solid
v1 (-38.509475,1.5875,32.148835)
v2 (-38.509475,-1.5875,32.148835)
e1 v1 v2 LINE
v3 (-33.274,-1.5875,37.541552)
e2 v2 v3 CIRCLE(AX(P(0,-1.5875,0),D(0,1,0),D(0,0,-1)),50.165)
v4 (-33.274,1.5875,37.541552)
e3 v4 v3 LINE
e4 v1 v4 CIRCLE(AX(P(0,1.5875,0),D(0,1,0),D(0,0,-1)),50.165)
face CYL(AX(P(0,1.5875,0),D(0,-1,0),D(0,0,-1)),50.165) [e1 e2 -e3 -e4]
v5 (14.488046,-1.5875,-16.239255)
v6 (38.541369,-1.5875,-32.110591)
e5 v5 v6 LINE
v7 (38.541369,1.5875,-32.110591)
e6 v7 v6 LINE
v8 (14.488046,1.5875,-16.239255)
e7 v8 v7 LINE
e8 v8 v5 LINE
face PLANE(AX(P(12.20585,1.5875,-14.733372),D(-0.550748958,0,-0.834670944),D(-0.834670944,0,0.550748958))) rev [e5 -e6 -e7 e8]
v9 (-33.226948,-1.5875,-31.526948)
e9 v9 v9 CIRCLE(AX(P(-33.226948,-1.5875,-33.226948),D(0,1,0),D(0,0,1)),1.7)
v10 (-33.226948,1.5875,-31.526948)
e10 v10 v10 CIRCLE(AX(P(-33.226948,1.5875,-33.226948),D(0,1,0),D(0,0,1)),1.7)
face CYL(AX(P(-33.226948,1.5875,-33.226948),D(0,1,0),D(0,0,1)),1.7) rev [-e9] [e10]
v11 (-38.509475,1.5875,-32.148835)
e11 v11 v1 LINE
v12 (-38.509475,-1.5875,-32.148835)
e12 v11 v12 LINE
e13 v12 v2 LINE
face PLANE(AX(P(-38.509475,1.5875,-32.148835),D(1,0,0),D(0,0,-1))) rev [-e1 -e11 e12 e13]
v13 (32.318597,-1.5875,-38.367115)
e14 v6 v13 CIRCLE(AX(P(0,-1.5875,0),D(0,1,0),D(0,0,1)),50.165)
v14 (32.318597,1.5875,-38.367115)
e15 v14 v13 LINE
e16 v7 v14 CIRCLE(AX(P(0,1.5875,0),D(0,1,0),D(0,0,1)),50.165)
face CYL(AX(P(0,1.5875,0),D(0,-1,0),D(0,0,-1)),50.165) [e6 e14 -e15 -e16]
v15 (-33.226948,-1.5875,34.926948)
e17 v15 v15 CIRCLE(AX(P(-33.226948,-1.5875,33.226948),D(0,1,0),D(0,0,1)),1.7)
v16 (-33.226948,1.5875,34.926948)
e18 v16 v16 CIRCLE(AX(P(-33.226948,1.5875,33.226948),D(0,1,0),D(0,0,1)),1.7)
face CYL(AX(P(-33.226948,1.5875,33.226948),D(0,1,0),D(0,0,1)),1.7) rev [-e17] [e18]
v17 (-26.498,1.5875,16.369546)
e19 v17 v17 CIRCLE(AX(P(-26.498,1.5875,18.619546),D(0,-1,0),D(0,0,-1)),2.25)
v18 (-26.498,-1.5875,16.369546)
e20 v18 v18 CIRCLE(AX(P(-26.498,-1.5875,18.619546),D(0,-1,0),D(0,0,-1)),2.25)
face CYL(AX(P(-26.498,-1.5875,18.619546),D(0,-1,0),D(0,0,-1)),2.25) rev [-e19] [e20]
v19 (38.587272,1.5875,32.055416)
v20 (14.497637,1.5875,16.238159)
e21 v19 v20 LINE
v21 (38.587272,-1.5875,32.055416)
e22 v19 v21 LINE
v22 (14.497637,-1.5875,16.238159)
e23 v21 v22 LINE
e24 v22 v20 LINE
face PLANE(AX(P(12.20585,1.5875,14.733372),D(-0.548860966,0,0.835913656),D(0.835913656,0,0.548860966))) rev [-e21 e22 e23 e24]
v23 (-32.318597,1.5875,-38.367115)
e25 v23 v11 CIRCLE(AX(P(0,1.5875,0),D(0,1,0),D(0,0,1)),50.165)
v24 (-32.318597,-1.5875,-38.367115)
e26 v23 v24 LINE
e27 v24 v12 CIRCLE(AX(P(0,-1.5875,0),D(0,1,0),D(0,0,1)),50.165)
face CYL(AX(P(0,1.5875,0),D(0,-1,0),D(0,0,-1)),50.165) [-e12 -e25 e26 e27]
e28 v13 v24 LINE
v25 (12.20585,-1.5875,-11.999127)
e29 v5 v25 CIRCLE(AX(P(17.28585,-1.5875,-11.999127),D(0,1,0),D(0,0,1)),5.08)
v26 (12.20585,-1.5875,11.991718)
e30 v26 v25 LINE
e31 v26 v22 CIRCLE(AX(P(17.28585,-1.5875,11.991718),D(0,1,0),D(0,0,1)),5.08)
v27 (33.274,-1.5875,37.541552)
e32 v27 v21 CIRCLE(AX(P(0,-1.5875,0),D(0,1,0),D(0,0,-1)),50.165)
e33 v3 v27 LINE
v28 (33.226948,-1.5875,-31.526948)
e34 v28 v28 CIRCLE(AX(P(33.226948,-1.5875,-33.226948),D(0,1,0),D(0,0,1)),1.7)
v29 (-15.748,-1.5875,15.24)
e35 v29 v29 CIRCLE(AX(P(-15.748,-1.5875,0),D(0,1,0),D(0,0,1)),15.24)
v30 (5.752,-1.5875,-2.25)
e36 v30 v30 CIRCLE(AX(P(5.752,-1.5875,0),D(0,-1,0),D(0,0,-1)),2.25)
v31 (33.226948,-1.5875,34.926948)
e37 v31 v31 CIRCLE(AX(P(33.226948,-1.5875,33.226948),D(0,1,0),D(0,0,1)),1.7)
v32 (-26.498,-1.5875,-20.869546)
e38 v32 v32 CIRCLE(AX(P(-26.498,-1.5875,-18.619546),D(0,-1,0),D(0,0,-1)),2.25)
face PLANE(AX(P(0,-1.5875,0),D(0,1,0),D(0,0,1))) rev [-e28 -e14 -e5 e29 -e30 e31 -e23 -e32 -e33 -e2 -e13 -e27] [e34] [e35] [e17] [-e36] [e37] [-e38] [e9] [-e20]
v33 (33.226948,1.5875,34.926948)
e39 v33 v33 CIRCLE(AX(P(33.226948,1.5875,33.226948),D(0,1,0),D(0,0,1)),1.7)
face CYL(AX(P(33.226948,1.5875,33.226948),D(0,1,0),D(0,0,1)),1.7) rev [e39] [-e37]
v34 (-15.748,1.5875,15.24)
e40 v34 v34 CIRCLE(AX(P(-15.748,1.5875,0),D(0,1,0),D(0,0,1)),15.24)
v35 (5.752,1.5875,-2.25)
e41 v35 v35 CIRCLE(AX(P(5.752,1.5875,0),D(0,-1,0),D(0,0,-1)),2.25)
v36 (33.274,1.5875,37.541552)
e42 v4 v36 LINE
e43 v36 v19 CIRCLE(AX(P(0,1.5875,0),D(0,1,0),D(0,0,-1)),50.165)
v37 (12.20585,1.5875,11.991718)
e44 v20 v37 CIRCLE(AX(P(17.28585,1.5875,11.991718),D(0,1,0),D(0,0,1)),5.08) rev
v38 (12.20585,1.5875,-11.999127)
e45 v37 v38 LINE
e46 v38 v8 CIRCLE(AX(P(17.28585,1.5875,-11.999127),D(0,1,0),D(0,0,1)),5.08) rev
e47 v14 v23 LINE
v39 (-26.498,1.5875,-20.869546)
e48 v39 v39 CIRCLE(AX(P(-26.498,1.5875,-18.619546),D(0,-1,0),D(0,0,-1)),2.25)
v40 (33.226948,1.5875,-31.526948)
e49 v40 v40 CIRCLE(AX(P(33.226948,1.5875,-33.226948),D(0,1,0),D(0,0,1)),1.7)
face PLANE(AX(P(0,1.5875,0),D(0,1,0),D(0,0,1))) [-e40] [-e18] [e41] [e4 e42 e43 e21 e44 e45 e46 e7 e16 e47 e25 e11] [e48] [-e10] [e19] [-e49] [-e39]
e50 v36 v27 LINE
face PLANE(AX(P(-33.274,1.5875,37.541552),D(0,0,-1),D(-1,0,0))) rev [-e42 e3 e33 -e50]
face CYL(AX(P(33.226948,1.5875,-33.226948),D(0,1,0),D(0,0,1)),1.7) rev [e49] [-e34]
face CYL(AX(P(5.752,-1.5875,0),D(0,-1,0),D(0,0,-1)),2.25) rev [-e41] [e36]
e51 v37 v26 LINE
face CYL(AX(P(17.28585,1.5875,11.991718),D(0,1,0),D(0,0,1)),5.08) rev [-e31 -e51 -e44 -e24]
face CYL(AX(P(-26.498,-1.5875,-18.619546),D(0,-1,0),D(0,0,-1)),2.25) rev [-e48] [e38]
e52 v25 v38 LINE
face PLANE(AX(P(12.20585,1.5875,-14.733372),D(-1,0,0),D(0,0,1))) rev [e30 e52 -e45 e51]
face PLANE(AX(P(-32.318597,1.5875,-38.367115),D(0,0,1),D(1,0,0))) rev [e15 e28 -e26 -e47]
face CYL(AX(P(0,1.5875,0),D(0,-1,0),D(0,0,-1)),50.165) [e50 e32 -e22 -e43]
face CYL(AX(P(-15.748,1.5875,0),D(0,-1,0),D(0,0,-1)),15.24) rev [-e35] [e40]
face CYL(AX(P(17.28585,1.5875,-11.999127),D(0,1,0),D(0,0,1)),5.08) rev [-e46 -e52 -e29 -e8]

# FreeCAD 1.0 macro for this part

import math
import FreeCAD as App
import Part
import Sketcher
from FreeCAD import Vector
Q = App.Units.Quantity


def edges_at(feature, points):
    """Names of the edges that pass closest to the given points."""
    edges = feature.Shape.Edges
    near = lambda p: min(range(len(edges)), key=lambda i: edges[i].distToShape(Part.Vertex(*p))[0])
    return sorted({f"Edge{near(p) + 1}" for p in points})

doc = App.newDocument("Part")
params = doc.addObject("Spreadsheet::Sheet", "Params")
for row, (alias, value) in enumerate([
    ("sketch1_diameter", "1.2 in"),
    ("sketch1_radius", "1.975 in"),
    ("sketch1_width", "2.62 in"),
    ("pad1_length", "0.125 in"),
    ("hole_diameter", "3.4 mm"),
    ("fillet_radius", "0.2 in"),
    ("hole2_diameter", "4.5 mm"),
], start=1):
    params.set(f"A{row}", alias)
    params.set(f"B{row}", "=" + value)
    params.setAlias(f"B{row}", alias)

body = doc.addObject("PartDesign::Body", "Body")

# Sketch on XZ plane
sketch1 = body.newObject("Sketcher::SketchObject", "Sketch")
sketch1.AttachmentSupport = (doc.getObject("XZ_Plane"), [""])
sketch1.MapMode = "FlatFace"
sketch1.addGeometry([
    Part.LineSegment(Vector(-38.509475, -32.148835, 0), Vector(-38.509475, 32.148835, 0)),  # 0
    Part.ArcOfCircle(Part.Circle(Vector(0, 0, 0), Vector(0, 0, 1), 50.165), math.radians(131.551359), math.radians(140.143885)),  # 1
    Part.LineSegment(Vector(-33.274, 37.541552, 0), Vector(33.274, 37.541552, 0)),  # 2
    Part.ArcOfCircle(Part.Circle(Vector(0, 0, 0), Vector(0, 0, 1), 50.165), math.radians(39.717264), math.radians(48.448641)),  # 3
    Part.LineSegment(Vector(38.587272, 32.055416, 0), Vector(12.20585, 14.733372, 0)),  # 4
    Part.LineSegment(Vector(12.20585, 14.733372, 0), Vector(12.20585, -14.733372, 0)),  # 5
    Part.LineSegment(Vector(12.20585, -14.733372, 0), Vector(38.541369, -32.110591, 0)),  # 6
    Part.ArcOfCircle(Part.Circle(Vector(0, 0, 0), Vector(0, 0, 1), 50.165), math.radians(-49.890838), math.radians(-39.799239)),  # 7
    Part.LineSegment(Vector(32.318597, -38.367115, 0), Vector(-32.318597, -38.367115, 0)),  # 8
    Part.ArcOfCircle(Part.Circle(Vector(0, 0, 0), Vector(0, 0, 1), 50.165), math.radians(-140.143885), math.radians(-130.109162)),  # 9
    Part.Circle(Vector(-15.748, 0, 0), Vector(0, 0, 1), 15.24),  # 10
], False)
sketch1.addConstraint([
    Sketcher.Constraint("Coincident", 0, 2, 1, 2),
    Sketcher.Constraint("Coincident", 1, 1, 2, 1),
    Sketcher.Constraint("Coincident", 2, 2, 3, 2),
    Sketcher.Constraint("Coincident", 3, 1, 4, 1),
    Sketcher.Constraint("Coincident", 4, 2, 5, 1),
    Sketcher.Constraint("Coincident", 5, 2, 6, 1),
    Sketcher.Constraint("Coincident", 6, 2, 7, 2),
    Sketcher.Constraint("Coincident", 7, 1, 8, 1),
    Sketcher.Constraint("Coincident", 8, 2, 9, 2),
    Sketcher.Constraint("Coincident", 9, 1, 0, 1),
    Sketcher.Constraint("Vertical", 0),
    Sketcher.Constraint("Horizontal", 2),
    Sketcher.Constraint("Vertical", 5),
    Sketcher.Constraint("Horizontal", 8),
    Sketcher.Constraint("Coincident", 1, 3, -1, 1),
    Sketcher.Constraint("Coincident", 3, 3, -1, 1),
    Sketcher.Constraint("Coincident", 7, 3, -1, 1),
    Sketcher.Constraint("Coincident", 9, 3, -1, 1),
    Sketcher.Constraint("Equal", 1, 3),
    Sketcher.Constraint("Equal", 3, 7),
    Sketcher.Constraint("Equal", 7, 9),
    Sketcher.Constraint("PointOnObject", 10, 3, -1),
    Sketcher.Constraint("Diameter", 10, Q("1.2 in")),
    Sketcher.Constraint("Radius", 1, Q("1.975 in")),
    Sketcher.Constraint("DistanceX", 2, 1, 2, 2, Q("2.62 in")),
    Sketcher.Constraint("DistanceX", 10, 3, -1, 1, Q("0.62 in")),
    Sketcher.Constraint("DistanceY", 0, 1, 0, 2, 64.297669),
    Sketcher.Constraint("DistanceX", 8, 2, 8, 1, 64.637195),
    Sketcher.Constraint("DistanceY", 5, 2, 5, 1, 29.466744),
    Sketcher.Constraint("DistanceX", -1, 1, 3, 1, 38.587272),
    Sketcher.Constraint("DistanceX", -1, 1, 4, 2, 12.20585),
    Sketcher.Constraint("DistanceX", -1, 1, 6, 2, 38.541369),
    Sketcher.Constraint("DistanceY", 4, 2, 2, 2, 22.80818),
])
sketch1.setExpression("Constraints[22]", "Params.sketch1_diameter")
sketch1.setExpression("Constraints[23]", "Params.sketch1_radius")
sketch1.setExpression("Constraints[24]", "Params.sketch1_width")
pad1 = body.newObject("PartDesign::Pad", "Pad")
pad1.Profile = sketch1
pad1.setExpression("Length", "Params.pad1_length")
pad1.Midplane = True

# Sketch on XZ plane
sketch2 = body.newObject("Sketcher::SketchObject", "Sketch001")
sketch2.AttachmentSupport = (doc.getObject("XZ_Plane"), [""])
sketch2.MapMode = "FlatFace"
sketch2.AttachmentOffset = App.Placement(Vector(0, 0, -0.0625 * 25.4), App.Rotation())
sketch2.addGeometry([
    Part.Circle(Vector(-33.226948, -33.226948, 0), Vector(0, 0, 1), 1.7),
    Part.Circle(Vector(33.226948, -33.226948, 0), Vector(0, 0, 1), 1.7),
    Part.Circle(Vector(33.226948, 33.226948, 0), Vector(0, 0, 1), 1.7),
    Part.Circle(Vector(-33.226948, 33.226948, 0), Vector(0, 0, 1), 1.7),
], False)
sketch2.addConstraint([
    Sketcher.Constraint("Equal", 0, 1),
    Sketcher.Constraint("Equal", 1, 2),
    Sketcher.Constraint("Equal", 2, 3),
    Sketcher.Constraint("Symmetric", 0, 3, 2, 3, -1, 1),
    Sketcher.Constraint("Symmetric", 1, 3, 3, 3, -1, 1),
    Sketcher.Constraint("Symmetric", 0, 3, 1, 3, -2),
    Sketcher.Constraint("Diameter", 0, 3.4),
    Sketcher.Constraint("DistanceX", 0, 3, -1, 1, 33.226948),
    Sketcher.Constraint("DistanceY", 0, 3, -1, 1, 33.226948),
])
doc.recompute()
hole = body.newObject("PartDesign::Hole", "Hole")
hole.Profile = sketch2
hole.ThreadType = "None"
hole.setExpression("Diameter", "Params.hole_diameter")
hole.DepthType = "ThroughAll"
hole.Reversed = True
doc.recompute()

fillet = body.newObject("PartDesign::Fillet", "Fillet")
fillet.Base = (hole, edges_at(hole, [(12.206, 0, -14.733), (12.206, 0, 14.733)]))
fillet.setExpression("Radius", "Params.fillet_radius")

# Sketch on XZ plane
sketch3 = body.newObject("Sketcher::SketchObject", "Sketch002")
sketch3.AttachmentSupport = (doc.getObject("XZ_Plane"), [""])
sketch3.MapMode = "FlatFace"
sketch3.AttachmentOffset = App.Placement(Vector(0, 0, 0.0625 * 25.4), App.Rotation())
sketch3.addGeometry(Part.Circle(Vector(5.752, 0, 0), Vector(0, 0, 1), 2.25), False)
sketch3.addConstraint([
    Sketcher.Constraint("PointOnObject", 0, 3, -1),
    Sketcher.Constraint("Diameter", 0, 4.5),
    Sketcher.Constraint("DistanceX", -1, 1, 0, 3, 5.752),
])
doc.recompute()
hole2 = body.newObject("PartDesign::Hole", "Hole001")
hole2.Profile = sketch3
hole2.ThreadType = "None"
hole2.setExpression("Diameter", "Params.hole2_diameter")
hole2.DepthType = "ThroughAll"
doc.recompute()

datumline = body.newObject("PartDesign::Line", "DatumLine")
datumline.Placement = App.Placement(Vector(-15.748, 0, 0), App.Rotation(Vector(0, 0, 1), Vector(0, 1, 0)))
polarpattern = body.newObject("PartDesign::PolarPattern", "PolarPattern")
polarpattern.Originals = [hole2]
polarpattern.Axis = (datumline, [""])
polarpattern.Angle = 360
polarpattern.Occurrences = 3
body.Tip = polarpattern

doc.recompute()
